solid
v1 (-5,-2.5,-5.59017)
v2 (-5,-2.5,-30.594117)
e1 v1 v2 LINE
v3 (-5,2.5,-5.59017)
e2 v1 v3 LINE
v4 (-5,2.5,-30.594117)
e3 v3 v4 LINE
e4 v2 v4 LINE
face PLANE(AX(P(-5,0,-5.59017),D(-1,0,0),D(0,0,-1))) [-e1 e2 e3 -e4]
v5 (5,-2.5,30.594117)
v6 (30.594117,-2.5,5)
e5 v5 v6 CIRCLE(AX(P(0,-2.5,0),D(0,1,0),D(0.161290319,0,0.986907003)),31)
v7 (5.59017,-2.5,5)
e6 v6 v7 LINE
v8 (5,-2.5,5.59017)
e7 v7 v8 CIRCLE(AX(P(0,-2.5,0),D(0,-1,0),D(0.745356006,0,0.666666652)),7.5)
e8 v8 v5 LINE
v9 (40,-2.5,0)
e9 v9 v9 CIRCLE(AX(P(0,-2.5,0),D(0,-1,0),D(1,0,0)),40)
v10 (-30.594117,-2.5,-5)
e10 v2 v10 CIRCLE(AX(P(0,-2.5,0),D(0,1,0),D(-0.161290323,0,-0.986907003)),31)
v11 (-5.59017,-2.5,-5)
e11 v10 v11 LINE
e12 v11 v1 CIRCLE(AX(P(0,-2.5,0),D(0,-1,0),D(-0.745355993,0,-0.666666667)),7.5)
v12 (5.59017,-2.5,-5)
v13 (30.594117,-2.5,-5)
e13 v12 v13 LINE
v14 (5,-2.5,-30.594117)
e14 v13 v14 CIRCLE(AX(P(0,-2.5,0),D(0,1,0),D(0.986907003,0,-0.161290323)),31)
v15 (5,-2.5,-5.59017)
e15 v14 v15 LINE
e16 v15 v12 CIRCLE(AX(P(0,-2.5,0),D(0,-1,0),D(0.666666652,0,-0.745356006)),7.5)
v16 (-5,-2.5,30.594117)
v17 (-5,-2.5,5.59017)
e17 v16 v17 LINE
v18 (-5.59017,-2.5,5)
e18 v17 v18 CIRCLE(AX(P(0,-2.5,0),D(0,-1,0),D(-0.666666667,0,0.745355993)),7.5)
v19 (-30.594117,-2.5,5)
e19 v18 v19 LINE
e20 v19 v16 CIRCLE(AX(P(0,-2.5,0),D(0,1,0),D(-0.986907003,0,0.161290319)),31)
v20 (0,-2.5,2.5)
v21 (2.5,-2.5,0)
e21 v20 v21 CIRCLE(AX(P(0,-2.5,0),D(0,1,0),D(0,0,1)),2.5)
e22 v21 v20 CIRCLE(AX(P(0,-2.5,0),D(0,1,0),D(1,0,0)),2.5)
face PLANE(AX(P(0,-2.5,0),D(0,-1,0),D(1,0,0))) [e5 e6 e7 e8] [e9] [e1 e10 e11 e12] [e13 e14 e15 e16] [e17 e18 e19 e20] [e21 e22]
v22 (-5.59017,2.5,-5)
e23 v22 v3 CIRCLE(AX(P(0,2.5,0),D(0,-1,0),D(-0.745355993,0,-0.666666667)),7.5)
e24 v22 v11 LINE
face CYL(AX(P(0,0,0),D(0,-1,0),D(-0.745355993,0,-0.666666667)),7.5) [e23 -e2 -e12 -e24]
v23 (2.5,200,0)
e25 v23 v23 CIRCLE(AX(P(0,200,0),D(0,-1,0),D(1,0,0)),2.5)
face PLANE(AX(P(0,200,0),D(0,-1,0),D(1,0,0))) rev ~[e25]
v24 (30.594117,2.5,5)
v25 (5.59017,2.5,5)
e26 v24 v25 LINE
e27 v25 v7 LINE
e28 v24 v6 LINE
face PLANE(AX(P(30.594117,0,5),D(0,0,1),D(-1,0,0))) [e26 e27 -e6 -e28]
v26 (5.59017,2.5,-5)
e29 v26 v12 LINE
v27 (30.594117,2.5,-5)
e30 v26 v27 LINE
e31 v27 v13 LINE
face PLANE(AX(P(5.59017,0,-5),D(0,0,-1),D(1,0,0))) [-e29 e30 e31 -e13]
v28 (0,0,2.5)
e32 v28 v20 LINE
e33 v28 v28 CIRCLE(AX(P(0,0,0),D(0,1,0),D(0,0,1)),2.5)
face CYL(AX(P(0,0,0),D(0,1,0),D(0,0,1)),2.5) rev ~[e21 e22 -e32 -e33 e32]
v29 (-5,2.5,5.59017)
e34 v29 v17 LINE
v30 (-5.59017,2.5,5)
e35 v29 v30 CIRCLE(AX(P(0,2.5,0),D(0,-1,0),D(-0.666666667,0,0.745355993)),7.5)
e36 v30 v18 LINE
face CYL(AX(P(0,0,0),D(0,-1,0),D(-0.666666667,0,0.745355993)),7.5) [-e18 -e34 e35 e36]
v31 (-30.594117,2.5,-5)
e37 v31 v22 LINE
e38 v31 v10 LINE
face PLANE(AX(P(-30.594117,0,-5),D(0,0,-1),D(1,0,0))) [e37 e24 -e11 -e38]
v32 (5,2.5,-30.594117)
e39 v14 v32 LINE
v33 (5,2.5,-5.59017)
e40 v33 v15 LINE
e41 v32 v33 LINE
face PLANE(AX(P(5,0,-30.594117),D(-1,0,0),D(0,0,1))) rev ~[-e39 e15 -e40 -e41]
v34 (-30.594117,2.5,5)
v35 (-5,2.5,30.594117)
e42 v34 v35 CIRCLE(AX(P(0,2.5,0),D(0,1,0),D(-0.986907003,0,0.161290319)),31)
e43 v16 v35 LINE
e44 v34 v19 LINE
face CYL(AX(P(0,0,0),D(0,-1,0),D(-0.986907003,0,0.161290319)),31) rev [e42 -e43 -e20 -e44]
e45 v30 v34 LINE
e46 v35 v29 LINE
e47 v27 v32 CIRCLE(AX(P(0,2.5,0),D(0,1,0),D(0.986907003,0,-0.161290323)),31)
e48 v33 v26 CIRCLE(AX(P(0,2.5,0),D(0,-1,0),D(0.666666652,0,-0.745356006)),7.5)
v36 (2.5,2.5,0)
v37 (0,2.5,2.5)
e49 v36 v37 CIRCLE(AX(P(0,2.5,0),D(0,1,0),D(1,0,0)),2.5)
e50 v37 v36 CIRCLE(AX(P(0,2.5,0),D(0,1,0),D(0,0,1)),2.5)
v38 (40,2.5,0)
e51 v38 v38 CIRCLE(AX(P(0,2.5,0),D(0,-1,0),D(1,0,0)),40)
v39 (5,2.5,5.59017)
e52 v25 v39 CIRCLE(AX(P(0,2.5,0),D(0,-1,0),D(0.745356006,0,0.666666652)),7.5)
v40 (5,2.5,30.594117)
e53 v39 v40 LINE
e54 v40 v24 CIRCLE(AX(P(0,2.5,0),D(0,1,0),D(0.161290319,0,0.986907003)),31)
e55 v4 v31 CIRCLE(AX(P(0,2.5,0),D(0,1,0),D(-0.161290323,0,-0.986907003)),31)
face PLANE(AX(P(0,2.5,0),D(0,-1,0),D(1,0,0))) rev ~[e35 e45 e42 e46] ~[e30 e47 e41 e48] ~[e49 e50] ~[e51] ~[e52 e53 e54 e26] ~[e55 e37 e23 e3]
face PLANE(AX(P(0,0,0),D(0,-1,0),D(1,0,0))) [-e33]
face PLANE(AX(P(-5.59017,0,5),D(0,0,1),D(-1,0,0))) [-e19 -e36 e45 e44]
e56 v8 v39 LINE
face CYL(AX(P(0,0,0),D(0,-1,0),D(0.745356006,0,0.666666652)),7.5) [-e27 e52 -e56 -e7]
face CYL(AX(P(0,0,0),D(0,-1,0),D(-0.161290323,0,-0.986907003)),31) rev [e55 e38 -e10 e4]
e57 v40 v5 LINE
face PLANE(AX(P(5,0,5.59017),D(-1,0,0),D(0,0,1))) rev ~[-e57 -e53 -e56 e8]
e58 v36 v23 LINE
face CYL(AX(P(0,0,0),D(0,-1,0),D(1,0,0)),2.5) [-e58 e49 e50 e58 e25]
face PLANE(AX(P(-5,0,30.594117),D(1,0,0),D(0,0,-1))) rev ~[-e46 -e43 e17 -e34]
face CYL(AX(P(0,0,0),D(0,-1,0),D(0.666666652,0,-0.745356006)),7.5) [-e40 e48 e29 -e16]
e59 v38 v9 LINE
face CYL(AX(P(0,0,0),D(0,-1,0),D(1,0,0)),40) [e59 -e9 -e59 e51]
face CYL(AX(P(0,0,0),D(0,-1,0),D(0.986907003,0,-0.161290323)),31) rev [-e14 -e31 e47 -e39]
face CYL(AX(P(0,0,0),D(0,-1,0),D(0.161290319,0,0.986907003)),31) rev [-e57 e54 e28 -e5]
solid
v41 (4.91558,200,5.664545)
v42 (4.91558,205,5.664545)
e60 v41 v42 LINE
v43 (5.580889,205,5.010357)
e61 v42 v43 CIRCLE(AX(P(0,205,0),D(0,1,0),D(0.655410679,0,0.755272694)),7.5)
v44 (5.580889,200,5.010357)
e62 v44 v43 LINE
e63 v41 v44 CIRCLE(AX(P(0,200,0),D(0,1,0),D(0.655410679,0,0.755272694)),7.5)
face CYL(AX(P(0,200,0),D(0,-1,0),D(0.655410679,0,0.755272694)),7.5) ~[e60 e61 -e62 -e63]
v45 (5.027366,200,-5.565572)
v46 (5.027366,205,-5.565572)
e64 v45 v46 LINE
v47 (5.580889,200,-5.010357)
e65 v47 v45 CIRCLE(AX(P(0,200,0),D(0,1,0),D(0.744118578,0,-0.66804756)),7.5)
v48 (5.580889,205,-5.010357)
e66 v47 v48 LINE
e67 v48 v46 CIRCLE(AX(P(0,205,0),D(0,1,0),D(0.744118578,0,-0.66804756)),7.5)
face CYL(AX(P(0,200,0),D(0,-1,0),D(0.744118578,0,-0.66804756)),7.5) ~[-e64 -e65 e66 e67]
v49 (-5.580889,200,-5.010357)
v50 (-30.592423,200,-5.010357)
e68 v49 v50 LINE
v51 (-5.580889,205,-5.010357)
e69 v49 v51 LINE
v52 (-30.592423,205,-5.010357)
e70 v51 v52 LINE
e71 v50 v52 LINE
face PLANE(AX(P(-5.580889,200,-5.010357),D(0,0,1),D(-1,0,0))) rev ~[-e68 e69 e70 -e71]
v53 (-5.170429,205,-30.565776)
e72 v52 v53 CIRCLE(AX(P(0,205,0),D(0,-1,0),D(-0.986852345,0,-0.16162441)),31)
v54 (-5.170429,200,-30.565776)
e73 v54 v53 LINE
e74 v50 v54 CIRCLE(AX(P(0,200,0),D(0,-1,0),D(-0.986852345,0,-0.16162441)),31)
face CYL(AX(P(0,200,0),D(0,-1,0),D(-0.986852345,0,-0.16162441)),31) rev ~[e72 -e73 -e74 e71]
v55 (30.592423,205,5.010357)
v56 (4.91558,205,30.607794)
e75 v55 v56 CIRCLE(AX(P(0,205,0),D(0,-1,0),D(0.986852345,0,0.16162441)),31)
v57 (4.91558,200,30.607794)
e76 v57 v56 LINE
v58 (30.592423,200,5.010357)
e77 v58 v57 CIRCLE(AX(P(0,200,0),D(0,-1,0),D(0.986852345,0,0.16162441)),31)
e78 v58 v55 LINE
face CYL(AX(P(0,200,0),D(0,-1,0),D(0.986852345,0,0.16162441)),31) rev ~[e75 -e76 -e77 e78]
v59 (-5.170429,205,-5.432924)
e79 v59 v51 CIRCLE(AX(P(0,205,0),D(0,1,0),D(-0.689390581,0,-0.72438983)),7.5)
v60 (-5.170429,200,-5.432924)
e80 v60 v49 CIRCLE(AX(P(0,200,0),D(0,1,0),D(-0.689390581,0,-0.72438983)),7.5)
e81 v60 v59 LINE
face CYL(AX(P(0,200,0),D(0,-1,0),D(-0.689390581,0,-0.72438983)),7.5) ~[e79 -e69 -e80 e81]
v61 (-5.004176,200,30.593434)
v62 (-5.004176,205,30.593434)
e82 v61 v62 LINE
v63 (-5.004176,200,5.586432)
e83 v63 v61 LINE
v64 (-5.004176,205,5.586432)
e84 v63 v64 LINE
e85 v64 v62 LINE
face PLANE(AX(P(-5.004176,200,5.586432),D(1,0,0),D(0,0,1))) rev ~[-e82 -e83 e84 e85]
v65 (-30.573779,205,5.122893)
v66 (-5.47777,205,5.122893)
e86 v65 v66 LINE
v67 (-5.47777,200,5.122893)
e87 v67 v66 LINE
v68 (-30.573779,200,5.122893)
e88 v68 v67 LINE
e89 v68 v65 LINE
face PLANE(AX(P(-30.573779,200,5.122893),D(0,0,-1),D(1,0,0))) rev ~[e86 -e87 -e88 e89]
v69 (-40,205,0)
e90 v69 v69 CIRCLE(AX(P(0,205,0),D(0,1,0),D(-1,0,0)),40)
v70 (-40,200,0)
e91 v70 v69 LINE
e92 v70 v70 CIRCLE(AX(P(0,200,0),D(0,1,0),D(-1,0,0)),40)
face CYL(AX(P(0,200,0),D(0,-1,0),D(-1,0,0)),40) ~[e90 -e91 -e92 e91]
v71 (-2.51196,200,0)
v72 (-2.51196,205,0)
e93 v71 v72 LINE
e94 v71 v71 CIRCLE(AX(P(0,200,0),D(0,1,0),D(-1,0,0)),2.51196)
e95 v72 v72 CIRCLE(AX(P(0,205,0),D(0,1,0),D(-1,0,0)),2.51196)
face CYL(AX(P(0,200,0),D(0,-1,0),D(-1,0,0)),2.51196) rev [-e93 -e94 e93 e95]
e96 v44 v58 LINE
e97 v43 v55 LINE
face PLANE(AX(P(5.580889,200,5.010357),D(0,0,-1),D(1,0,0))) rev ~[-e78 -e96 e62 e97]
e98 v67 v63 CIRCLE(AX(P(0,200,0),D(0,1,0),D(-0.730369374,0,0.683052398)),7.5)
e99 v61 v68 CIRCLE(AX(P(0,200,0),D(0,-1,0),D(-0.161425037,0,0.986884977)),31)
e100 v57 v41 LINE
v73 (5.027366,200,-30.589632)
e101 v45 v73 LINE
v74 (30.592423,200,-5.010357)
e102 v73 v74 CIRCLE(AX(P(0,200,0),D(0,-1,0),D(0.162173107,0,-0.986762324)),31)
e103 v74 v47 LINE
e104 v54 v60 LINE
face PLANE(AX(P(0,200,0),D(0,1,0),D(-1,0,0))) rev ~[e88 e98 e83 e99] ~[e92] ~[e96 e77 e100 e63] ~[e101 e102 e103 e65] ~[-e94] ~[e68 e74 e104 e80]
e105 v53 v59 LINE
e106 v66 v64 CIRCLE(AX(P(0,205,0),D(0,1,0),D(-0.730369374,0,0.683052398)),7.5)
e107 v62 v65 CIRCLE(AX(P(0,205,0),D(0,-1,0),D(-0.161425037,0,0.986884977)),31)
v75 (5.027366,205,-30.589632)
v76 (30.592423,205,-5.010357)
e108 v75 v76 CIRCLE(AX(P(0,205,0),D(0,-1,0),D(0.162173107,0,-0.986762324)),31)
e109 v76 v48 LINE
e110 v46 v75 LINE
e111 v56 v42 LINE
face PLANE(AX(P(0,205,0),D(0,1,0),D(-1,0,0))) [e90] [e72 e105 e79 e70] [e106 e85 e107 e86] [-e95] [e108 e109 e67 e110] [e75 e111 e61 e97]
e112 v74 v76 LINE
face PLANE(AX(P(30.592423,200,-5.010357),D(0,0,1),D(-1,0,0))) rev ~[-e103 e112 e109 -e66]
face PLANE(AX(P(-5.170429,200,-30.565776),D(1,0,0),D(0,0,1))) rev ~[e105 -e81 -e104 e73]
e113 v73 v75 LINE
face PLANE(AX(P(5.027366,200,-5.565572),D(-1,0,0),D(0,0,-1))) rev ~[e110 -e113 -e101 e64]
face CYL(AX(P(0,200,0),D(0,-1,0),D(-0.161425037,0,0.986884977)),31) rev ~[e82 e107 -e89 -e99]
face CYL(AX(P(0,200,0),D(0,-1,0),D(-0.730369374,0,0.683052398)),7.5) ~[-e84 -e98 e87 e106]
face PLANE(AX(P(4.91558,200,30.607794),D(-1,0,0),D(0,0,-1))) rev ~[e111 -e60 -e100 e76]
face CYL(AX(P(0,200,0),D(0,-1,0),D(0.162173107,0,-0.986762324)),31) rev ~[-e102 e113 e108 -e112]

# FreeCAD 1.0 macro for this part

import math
import FreeCAD as App
import Part
import Sketcher

doc = App.newDocument("Part")
params = doc.addObject("Spreadsheet::Sheet", "Params")
for row, (alias, value) in enumerate([
    ("sketch1_diameter", "80 mm"),
    ("sketch1_radius", "31 mm"),
    ("sketch1_radius2", "7.5 mm"),
    ("sketch1_radius3", "2.5 mm"),
    ("pad1_length", "5 mm"),
    ("sketch2_diameter", "5 mm"),
    ("pad2_length", "200 mm"),
    ("sketch3_diameter", "80 mm"),
    ("sketch3_radius", "31 mm"),
    ("sketch3_radius2", "7.5 mm"),
    ("pad3_length", "5 mm"),
], start=1):
    params.set(f"A{row}", alias)
    params.set(f"B{row}", "=" + value)
    params.setAlias(f"B{row}", alias)

body = doc.addObject("PartDesign::Body", "Body")

sketch1 = body.newObject("Sketcher::SketchObject", "Sketch")
sketch1.AttachmentSupport = (doc.getObject("XZ_Plane"), [""])
sketch1.MapMode = "FlatFace"
sketch1.addGeometry([
    Part.Circle(App.Vector(0, 0, 0), App.Vector(0, 0, 1), 40),
    Part.ArcOfCircle(Part.Circle(App.Vector(0, 0, 0), App.Vector(0, 0, 1), 31), math.radians(-171), math.radians(-99)),
    Part.LineSegment(App.Vector(-30.6, -5, 0), App.Vector(-5.6, -5, 0)),
    Part.ArcOfCircle(Part.Circle(App.Vector(0, 0, 0), App.Vector(0, 0, 1), 7.5), math.radians(-138.19), math.radians(-131.81)),
    Part.LineSegment(App.Vector(-5, -5.6, 0), App.Vector(-5, -30.6, 0)),
    Part.ArcOfCircle(Part.Circle(App.Vector(0, 0, 0), App.Vector(0, 0, 1), 2.5), math.radians(90), math.radians(360)),
    Part.ArcOfCircle(Part.Circle(App.Vector(0, 0, 0), App.Vector(0, 0, 1), 2.5), math.radians(0), math.radians(90)),
    Part.LineSegment(App.Vector(5.6, -5, 0), App.Vector(30.6, -5, 0)),
    Part.ArcOfCircle(Part.Circle(App.Vector(0, 0, 0), App.Vector(0, 0, 1), 31), math.radians(-81), math.radians(-9)),
    Part.LineSegment(App.Vector(5, -30.6, 0), App.Vector(5, -5.6, 0)),
    Part.ArcOfCircle(Part.Circle(App.Vector(0, 0, 0), App.Vector(0, 0, 1), 7.5), math.radians(-48.19), math.radians(-41.81)),
    Part.LineSegment(App.Vector(-5.6, 5, 0), App.Vector(-30.6, 5, 0)),
    Part.ArcOfCircle(Part.Circle(App.Vector(0, 0, 0), App.Vector(0, 0, 1), 31), math.radians(99), math.radians(171)),
    Part.LineSegment(App.Vector(-5, 30.6, 0), App.Vector(-5, 5.6, 0)),
    Part.ArcOfCircle(Part.Circle(App.Vector(0, 0, 0), App.Vector(0, 0, 1), 7.5), math.radians(131.81), math.radians(138.19)),
    Part.ArcOfCircle(Part.Circle(App.Vector(0, 0, 0), App.Vector(0, 0, 1), 7.5), math.radians(41.81), math.radians(48.19)),
    Part.LineSegment(App.Vector(5, 5.6, 0), App.Vector(5, 30.6, 0)),
    Part.ArcOfCircle(Part.Circle(App.Vector(0, 0, 0), App.Vector(0, 0, 1), 31), math.radians(9), math.radians(81)),
    Part.LineSegment(App.Vector(30.6, 5, 0), App.Vector(5.6, 5, 0)),
], False)
sketch1.addConstraint([
    Sketcher.Constraint("Coincident", 1, 1, 2, 1),
    Sketcher.Constraint("Coincident", 2, 2, 3, 1),
    Sketcher.Constraint("Coincident", 3, 2, 4, 1),
    Sketcher.Constraint("Coincident", 4, 2, 1, 2),
    Sketcher.Constraint("Tangent", 5, 1, 6, 2),
    Sketcher.Constraint("Coincident", 6, 1, 5, 2),
    Sketcher.Constraint("Coincident", 7, 2, 8, 2),
    Sketcher.Constraint("Coincident", 8, 1, 9, 1),
    Sketcher.Constraint("Coincident", 9, 2, 10, 1),
    Sketcher.Constraint("Coincident", 10, 2, 7, 1),
    Sketcher.Constraint("Coincident", 11, 2, 12, 2),
    Sketcher.Constraint("Coincident", 12, 1, 13, 1),
    Sketcher.Constraint("Coincident", 13, 2, 14, 1),
    Sketcher.Constraint("Coincident", 14, 2, 11, 1),
    Sketcher.Constraint("Coincident", 15, 2, 16, 1),
    Sketcher.Constraint("Coincident", 16, 2, 17, 2),
    Sketcher.Constraint("Coincident", 17, 1, 18, 1),
    Sketcher.Constraint("Coincident", 18, 2, 15, 1),
    Sketcher.Constraint("Horizontal", 2),
    Sketcher.Constraint("Vertical", 4),
    Sketcher.Constraint("Horizontal", 7),
    Sketcher.Constraint("Vertical", 9),
    Sketcher.Constraint("Horizontal", 11),
    Sketcher.Constraint("Vertical", 13),
    Sketcher.Constraint("Vertical", 16),
    Sketcher.Constraint("Horizontal", 18),
    Sketcher.Constraint("Coincident", 0, 3, -1, 1),
    Sketcher.Constraint("Coincident", 1, 3, -1, 1),
    Sketcher.Constraint("Coincident", 3, 3, -1, 1),
    Sketcher.Constraint("Coincident", 5, 3, -1, 1),
    Sketcher.Constraint("Coincident", 8, 3, -1, 1),
    Sketcher.Constraint("Coincident", 10, 3, -1, 1),
    Sketcher.Constraint("Coincident", 12, 3, -1, 1),
    Sketcher.Constraint("Coincident", 14, 3, -1, 1),
    Sketcher.Constraint("Coincident", 15, 3, -1, 1),
    Sketcher.Constraint("Coincident", 17, 3, -1, 1),
    Sketcher.Constraint("Equal", 1, 8),
    Sketcher.Constraint("Equal", 3, 10),
    Sketcher.Constraint("Equal", 8, 12),
    Sketcher.Constraint("Equal", 10, 14),
    Sketcher.Constraint("Equal", 14, 15),
    Sketcher.Constraint("Equal", 12, 17),
    Sketcher.Constraint("PointOnObject", 5, 1, -2),
    Sketcher.Constraint("PointOnObject", 6, 1, -1),
    Sketcher.Constraint("Horizontal", 2, 2, 7, 2),
    Sketcher.Constraint("Horizontal", 4, 2, 8, 1),
    Sketcher.Constraint("Horizontal", 13, 2, 15, 2),
    Sketcher.Constraint("Horizontal", 14, 2, 17, 1),
    Sketcher.Constraint("Vertical", 1, 1, 11, 2),
    Sketcher.Constraint("Vertical", 4, 2, 12, 1),
    Sketcher.Constraint("Equal", 18, 4),
    Sketcher.Constraint("Diameter", 0, 80.0),
    Sketcher.Constraint("Radius", 1, 31.0),
    Sketcher.Constraint("Radius", 3, 7.5),
    Sketcher.Constraint("Radius", 5, 2.5),
    Sketcher.Constraint("DistanceY", 1, 1, -1, 1, 5.0),
])
sketch1.setExpression("Constraints[51]", "Params.sketch1_diameter")
sketch1.setExpression("Constraints[52]", "Params.sketch1_radius")
sketch1.setExpression("Constraints[53]", "Params.sketch1_radius2")
sketch1.setExpression("Constraints[54]", "Params.sketch1_radius3")
pad1 = body.newObject("PartDesign::Pad", "Pad")
pad1.Profile = sketch1
pad1.setExpression("Length", "Params.pad1_length")
pad1.Midplane = True

sketch2 = body.newObject("Sketcher::SketchObject", "Sketch001")
sketch2.AttachmentSupport = (doc.getObject("XZ_Plane"), [""])
sketch2.MapMode = "FlatFace"
sketch2.addGeometry(Part.Circle(App.Vector(0, 0, 0), App.Vector(0, 0, 1), 2.5), False)
sketch2.addConstraint([
    Sketcher.Constraint("Coincident", 0, 3, -1, 1),
    Sketcher.Constraint("Diameter", 0, 5.0),
])
sketch2.setExpression("Constraints[1]", "Params.sketch2_diameter")
pad2 = body.newObject("PartDesign::Pad", "Pad001")
pad2.Profile = sketch2
pad2.setExpression("Length", "Params.pad2_length")
pad2.Reversed = True
body2 = doc.addObject("PartDesign::Body", "Body001")

sketch3 = body2.newObject("Sketcher::SketchObject", "Sketch002")
sketch3.AttachmentSupport = (doc.getObject("XZ_Plane001"), [""])
sketch3.MapMode = "FlatFace"
sketch3.AttachmentOffset = App.Placement(App.Vector(0, 0, -200), App.Rotation())
sketch3.addGeometry([
    Part.Circle(App.Vector(0, 0, 0), App.Vector(0, 0, 1), 40),
    Part.LineSegment(App.Vector(5, -5.6, 0), App.Vector(5, -30.6, 0)),
    Part.ArcOfCircle(Part.Circle(App.Vector(0, 0, 0), App.Vector(0, 0, 1), 31), math.radians(-81), math.radians(-9)),
    Part.LineSegment(App.Vector(30.6, -5, 0), App.Vector(5.6, -5, 0)),
    Part.ArcOfCircle(Part.Circle(App.Vector(0, 0, 0), App.Vector(0, 0, 1), 7.5), math.radians(-47.91), math.radians(-41.92)),
    Part.ArcOfCircle(Part.Circle(App.Vector(0, 0, 0), App.Vector(0, 0, 1), 31), math.radians(-171), math.radians(-100)),
    Part.LineSegment(App.Vector(-5.2, -30.6, 0), App.Vector(-5.2, -5.4, 0)),
    Part.ArcOfCircle(Part.Circle(App.Vector(0, 0, 0), App.Vector(0, 0, 1), 7.5), math.radians(-138.08), math.radians(-133.58)),
    Part.LineSegment(App.Vector(-5.6, -5, 0), App.Vector(-30.6, -5, 0)),
    Part.Circle(App.Vector(0, 0, 0), App.Vector(0, 0, 1), 2.5),
    Part.LineSegment(App.Vector(4.9, 30.6, 0), App.Vector(4.9, 5.7, 0)),
    Part.ArcOfCircle(Part.Circle(App.Vector(0, 0, 0), App.Vector(0, 0, 1), 7.5), math.radians(41.92), math.radians(49.05)),
    Part.LineSegment(App.Vector(5.6, 5, 0), App.Vector(30.6, 5, 0)),
    Part.ArcOfCircle(Part.Circle(App.Vector(0, 0, 0), App.Vector(0, 0, 1), 31), math.radians(9), math.radians(81)),
    Part.LineSegment(App.Vector(-5, 5.6, 0), App.Vector(-5, 30.6, 0)),
    Part.ArcOfCircle(Part.Circle(App.Vector(0, 0, 0), App.Vector(0, 0, 1), 31), math.radians(99), math.radians(170)),
    Part.LineSegment(App.Vector(-30.6, 5.1, 0), App.Vector(-5.5, 5.1, 0)),
    Part.ArcOfCircle(Part.Circle(App.Vector(0, 0, 0), App.Vector(0, 0, 1), 7.5), math.radians(131.85), math.radians(136.92)),
], False)
sketch3.addConstraint([
    Sketcher.Constraint("Coincident", 1, 2, 2, 1),
    Sketcher.Constraint("Coincident", 2, 2, 3, 1),
    Sketcher.Constraint("Coincident", 3, 2, 4, 2),
    Sketcher.Constraint("Coincident", 4, 1, 1, 1),
    Sketcher.Constraint("Coincident", 5, 2, 6, 1),
    Sketcher.Constraint("Coincident", 6, 2, 7, 2),
    Sketcher.Constraint("Coincident", 7, 1, 8, 1),
    Sketcher.Constraint("Coincident", 8, 2, 5, 1),
    Sketcher.Constraint("Coincident", 10, 2, 11, 2),
    Sketcher.Constraint("Coincident", 11, 1, 12, 1),
    Sketcher.Constraint("Coincident", 12, 2, 13, 1),
    Sketcher.Constraint("Coincident", 13, 2, 10, 1),
    Sketcher.Constraint("Coincident", 14, 2, 15, 1),
    Sketcher.Constraint("Coincident", 15, 2, 16, 1),
    Sketcher.Constraint("Coincident", 16, 2, 17, 2),
    Sketcher.Constraint("Coincident", 17, 1, 14, 1),
    Sketcher.Constraint("Vertical", 1),
    Sketcher.Constraint("Horizontal", 3),
    Sketcher.Constraint("Vertical", 6),
    Sketcher.Constraint("Horizontal", 8),
    Sketcher.Constraint("Vertical", 10),
    Sketcher.Constraint("Horizontal", 12),
    Sketcher.Constraint("Vertical", 14),
    Sketcher.Constraint("Horizontal", 16),
    Sketcher.Constraint("Coincident", 0, 3, -1, 1),
    Sketcher.Constraint("Coincident", 2, 3, -1, 1),
    Sketcher.Constraint("Coincident", 4, 3, -1, 1),
    Sketcher.Constraint("Coincident", 5, 3, -1, 1),
    Sketcher.Constraint("Coincident", 7, 3, -1, 1),
    Sketcher.Constraint("Coincident", 9, 3, -1, 1),
    Sketcher.Constraint("Coincident", 11, 3, -1, 1),
    Sketcher.Constraint("Coincident", 13, 3, -1, 1),
    Sketcher.Constraint("Coincident", 15, 3, -1, 1),
    Sketcher.Constraint("Coincident", 17, 3, -1, 1),
    Sketcher.Constraint("Equal", 2, 5),
    Sketcher.Constraint("Equal", 4, 7),
    Sketcher.Constraint("Equal", 7, 11),
    Sketcher.Constraint("Equal", 5, 13),
    Sketcher.Constraint("Equal", 13, 15),
    Sketcher.Constraint("Equal", 11, 17),
    Sketcher.Constraint("Horizontal", 3, 2, 7, 1),
    Sketcher.Constraint("Vertical", 3, 2, 11, 1),
    Sketcher.Constraint("Diameter", 0, 80.0),
    Sketcher.Constraint("Radius", 2, 31.0),
    Sketcher.Constraint("Radius", 4, 7.5),
    Sketcher.Constraint("Diameter", 9, 5.02392),
    Sketcher.Constraint("DistanceX", 16, 1, 16, 2, 25.096009),
    Sketcher.Constraint("DistanceY", 1, 2, 1, 1, 25.02406),
    Sketcher.Constraint("DistanceY", 10, 2, 10, 1, 24.943249),
    Sketcher.Constraint("DistanceX", 3, 2, 3, 1, 25.011533),
    Sketcher.Constraint("DistanceY", 6, 1, 6, 2, 25.132852),
    Sketcher.Constraint("DistanceY", 14, 1, 14, 2, 25.007002),
])
sketch3.setExpression("Constraints[42]", "Params.sketch3_diameter")
sketch3.setExpression("Constraints[43]", "Params.sketch3_radius")
sketch3.setExpression("Constraints[44]", "Params.sketch3_radius2")
pad3 = body2.newObject("PartDesign::Pad", "Pad002")
pad3.Profile = sketch3
pad3.setExpression("Length", "Params.pad3_length")
pad3.Reversed = True

doc.recompute()
